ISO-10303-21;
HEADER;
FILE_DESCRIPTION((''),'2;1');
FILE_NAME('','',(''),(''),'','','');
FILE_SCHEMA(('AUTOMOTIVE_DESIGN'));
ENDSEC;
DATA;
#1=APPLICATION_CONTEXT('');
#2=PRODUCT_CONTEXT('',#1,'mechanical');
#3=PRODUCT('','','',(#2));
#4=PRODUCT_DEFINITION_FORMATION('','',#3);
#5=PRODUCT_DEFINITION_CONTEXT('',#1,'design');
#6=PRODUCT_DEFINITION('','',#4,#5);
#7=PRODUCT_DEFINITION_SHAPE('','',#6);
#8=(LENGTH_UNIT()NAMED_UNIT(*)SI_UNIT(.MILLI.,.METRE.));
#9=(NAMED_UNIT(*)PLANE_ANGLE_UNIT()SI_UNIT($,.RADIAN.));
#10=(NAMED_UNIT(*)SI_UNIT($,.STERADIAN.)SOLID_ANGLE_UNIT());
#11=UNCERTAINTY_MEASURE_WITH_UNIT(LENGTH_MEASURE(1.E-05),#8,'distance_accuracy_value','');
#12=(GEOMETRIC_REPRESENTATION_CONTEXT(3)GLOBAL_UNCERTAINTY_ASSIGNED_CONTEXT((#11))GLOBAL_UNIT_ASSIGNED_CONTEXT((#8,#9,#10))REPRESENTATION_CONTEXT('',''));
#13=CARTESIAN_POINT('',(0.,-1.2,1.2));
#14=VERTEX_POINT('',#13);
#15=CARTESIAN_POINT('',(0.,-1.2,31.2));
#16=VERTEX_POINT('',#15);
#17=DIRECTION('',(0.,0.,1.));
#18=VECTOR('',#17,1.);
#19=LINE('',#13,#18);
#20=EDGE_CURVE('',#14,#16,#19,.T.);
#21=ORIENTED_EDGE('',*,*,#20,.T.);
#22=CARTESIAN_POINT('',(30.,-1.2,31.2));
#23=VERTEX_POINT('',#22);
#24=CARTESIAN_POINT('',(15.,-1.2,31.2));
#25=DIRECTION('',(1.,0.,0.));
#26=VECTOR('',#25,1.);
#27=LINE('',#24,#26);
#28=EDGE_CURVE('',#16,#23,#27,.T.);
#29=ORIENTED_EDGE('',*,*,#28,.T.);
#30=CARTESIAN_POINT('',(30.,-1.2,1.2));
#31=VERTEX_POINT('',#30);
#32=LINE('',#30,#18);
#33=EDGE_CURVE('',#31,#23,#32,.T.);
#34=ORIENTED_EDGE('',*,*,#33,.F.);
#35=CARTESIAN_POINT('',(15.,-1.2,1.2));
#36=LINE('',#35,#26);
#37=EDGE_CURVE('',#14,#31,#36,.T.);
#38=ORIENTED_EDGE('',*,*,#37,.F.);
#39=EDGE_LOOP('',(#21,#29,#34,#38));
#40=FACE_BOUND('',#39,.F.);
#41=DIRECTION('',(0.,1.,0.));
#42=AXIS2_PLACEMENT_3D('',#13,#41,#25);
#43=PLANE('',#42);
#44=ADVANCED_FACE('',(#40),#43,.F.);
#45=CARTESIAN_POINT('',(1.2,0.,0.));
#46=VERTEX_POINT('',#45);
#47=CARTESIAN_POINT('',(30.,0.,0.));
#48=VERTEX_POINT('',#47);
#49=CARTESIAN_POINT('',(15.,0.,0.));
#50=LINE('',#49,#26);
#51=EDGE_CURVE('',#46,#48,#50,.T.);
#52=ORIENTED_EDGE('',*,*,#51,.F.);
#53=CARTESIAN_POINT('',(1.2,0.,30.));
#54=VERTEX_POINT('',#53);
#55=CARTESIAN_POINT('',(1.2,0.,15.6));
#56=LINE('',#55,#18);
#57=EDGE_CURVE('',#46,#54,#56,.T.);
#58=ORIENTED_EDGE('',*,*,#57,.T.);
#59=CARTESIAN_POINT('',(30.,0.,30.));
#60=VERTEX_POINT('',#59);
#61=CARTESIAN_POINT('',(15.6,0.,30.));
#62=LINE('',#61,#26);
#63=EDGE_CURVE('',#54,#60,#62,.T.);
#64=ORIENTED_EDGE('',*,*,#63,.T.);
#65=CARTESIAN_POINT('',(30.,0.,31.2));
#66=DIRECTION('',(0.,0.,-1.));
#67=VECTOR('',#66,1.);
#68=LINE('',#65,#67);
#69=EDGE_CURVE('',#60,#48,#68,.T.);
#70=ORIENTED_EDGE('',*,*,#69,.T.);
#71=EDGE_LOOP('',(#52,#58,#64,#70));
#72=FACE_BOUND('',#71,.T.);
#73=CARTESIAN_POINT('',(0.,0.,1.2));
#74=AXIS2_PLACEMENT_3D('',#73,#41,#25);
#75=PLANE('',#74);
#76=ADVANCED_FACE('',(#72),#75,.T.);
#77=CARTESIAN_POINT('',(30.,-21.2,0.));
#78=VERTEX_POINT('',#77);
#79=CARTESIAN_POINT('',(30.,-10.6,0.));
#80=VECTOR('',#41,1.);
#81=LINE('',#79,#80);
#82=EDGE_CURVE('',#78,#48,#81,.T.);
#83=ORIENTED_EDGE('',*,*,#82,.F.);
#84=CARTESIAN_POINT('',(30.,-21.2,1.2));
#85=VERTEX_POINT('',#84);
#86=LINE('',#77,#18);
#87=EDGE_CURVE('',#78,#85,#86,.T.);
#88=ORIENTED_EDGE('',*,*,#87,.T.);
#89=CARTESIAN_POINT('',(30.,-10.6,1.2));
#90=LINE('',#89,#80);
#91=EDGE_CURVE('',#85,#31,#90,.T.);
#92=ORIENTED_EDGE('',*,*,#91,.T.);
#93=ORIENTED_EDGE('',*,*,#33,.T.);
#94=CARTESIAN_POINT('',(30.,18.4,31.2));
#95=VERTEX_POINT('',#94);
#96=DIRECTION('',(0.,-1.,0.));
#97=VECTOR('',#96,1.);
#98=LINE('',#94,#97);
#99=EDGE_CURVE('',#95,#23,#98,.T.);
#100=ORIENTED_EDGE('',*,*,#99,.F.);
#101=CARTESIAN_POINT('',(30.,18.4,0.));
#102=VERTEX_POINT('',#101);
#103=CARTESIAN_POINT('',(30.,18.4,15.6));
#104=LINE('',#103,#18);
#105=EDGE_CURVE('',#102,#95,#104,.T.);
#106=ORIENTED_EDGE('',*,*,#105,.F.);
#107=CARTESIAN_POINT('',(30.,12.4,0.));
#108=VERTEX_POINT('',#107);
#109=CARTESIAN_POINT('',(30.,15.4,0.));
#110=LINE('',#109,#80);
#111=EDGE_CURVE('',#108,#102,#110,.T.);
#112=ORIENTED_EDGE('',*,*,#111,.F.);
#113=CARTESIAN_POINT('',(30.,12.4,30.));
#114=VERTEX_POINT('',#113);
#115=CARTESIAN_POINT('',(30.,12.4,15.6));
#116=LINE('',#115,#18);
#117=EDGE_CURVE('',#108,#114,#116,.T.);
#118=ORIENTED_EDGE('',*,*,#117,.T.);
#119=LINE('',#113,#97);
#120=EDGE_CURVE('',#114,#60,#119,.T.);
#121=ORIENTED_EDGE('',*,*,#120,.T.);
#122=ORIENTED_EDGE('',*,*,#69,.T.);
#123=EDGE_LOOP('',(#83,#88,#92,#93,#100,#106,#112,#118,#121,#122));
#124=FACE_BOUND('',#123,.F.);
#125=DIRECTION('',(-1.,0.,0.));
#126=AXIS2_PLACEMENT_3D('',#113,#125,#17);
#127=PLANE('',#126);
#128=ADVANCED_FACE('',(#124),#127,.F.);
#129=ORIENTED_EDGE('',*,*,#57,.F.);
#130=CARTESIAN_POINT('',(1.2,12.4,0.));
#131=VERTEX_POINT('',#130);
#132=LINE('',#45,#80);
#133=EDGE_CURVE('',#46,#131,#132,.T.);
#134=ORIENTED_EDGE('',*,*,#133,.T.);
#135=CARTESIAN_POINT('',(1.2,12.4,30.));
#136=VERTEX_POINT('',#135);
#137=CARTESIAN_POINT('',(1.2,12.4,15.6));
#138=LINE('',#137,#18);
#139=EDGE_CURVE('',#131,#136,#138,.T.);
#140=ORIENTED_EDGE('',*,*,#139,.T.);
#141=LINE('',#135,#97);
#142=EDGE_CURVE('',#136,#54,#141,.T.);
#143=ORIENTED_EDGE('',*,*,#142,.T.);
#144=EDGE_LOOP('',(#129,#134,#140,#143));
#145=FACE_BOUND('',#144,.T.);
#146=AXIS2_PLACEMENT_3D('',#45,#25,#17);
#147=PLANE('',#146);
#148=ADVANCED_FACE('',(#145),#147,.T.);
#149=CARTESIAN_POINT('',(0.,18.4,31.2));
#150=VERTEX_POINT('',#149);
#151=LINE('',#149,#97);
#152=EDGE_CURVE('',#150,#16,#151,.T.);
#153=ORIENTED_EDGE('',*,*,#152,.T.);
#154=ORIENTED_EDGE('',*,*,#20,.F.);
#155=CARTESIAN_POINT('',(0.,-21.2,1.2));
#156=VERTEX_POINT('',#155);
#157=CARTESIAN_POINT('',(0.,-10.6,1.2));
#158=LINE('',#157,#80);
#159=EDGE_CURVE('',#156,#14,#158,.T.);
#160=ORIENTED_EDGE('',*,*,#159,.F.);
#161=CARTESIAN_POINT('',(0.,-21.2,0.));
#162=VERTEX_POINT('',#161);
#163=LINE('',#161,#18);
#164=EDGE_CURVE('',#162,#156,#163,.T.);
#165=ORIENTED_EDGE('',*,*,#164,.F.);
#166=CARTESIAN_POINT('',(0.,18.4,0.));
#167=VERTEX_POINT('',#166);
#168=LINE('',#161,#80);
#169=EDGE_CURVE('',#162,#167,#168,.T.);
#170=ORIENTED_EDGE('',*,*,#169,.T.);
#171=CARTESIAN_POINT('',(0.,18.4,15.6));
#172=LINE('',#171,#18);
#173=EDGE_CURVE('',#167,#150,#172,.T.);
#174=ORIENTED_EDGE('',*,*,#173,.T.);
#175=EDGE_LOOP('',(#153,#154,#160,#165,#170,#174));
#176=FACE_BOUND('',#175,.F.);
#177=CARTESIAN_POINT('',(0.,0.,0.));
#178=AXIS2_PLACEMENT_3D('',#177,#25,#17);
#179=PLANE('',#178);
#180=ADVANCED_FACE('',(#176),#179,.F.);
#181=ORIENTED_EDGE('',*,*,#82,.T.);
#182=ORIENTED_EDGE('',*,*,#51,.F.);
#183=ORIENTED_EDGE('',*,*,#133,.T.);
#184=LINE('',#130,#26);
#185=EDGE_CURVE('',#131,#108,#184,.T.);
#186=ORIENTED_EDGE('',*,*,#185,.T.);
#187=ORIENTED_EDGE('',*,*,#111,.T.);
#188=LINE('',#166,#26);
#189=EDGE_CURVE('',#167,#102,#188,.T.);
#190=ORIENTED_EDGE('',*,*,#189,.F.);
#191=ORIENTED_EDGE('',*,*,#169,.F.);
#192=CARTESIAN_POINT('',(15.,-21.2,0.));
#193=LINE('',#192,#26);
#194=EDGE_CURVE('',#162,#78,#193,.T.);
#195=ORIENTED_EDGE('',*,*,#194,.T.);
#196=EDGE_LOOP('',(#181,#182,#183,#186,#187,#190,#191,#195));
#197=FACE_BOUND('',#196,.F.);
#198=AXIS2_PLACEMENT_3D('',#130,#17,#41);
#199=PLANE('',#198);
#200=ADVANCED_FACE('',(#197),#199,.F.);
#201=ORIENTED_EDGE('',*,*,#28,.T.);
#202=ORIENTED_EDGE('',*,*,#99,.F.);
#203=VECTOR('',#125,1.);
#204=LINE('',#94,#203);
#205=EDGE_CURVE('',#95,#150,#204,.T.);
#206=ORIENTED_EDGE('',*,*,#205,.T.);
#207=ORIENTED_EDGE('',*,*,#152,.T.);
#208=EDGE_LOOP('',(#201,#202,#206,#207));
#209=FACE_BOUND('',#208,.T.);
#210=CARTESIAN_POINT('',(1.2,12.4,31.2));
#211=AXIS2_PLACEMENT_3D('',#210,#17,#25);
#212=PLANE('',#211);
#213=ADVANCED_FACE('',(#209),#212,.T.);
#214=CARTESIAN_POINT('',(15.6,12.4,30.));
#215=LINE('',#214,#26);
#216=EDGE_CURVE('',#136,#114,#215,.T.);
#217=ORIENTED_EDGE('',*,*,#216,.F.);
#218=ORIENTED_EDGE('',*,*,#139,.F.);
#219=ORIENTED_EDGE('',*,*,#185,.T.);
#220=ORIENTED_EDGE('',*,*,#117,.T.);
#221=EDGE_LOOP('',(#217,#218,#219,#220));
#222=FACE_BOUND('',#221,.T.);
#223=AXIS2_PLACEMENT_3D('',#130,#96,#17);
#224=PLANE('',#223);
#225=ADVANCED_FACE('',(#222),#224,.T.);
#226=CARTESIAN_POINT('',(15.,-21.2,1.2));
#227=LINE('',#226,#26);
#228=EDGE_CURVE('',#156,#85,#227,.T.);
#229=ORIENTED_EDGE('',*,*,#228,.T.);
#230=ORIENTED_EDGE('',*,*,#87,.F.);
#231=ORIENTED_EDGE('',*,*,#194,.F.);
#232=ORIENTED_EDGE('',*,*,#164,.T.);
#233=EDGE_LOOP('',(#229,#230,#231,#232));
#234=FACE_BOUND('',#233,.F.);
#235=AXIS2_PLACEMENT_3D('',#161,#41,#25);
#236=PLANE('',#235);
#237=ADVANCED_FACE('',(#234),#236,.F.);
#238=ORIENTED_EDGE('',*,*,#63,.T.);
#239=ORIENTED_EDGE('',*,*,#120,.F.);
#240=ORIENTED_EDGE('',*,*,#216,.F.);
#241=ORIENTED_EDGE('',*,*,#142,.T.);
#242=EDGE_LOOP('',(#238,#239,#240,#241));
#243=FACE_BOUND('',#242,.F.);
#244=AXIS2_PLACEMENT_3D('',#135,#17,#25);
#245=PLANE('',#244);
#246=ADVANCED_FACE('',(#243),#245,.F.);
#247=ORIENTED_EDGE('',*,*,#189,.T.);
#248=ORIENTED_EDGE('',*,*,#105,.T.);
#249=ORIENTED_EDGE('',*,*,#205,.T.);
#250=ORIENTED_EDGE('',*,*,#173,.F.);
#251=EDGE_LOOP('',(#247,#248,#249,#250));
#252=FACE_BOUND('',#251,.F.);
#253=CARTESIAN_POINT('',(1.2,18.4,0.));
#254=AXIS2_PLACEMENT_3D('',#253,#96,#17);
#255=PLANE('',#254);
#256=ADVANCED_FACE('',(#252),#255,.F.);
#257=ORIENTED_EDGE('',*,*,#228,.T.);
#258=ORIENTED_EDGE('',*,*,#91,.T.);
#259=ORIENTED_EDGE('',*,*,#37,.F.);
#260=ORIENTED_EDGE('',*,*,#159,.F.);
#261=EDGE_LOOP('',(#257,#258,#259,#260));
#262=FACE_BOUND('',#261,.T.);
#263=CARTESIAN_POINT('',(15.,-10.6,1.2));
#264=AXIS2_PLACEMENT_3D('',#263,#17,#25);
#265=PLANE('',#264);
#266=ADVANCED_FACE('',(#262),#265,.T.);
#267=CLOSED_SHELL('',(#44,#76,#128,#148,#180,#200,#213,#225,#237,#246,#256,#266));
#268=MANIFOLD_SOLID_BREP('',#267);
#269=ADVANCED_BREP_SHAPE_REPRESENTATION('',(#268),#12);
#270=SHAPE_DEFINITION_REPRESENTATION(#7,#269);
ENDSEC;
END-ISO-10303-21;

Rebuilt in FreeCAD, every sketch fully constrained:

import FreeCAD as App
import Part
import Sketcher

V = App.Vector
Q = App.Units.Quantity

doc = App.newDocument("Part")
body = doc.addObject("PartDesign::Body", "Body")

# Sketch on XY plane
sketch1 = doc.addObject("Sketcher::SketchObject", "Sketch")
body.addObject(sketch1)
sketch1.AttachmentSupport = (doc.XY_Plane, [""])
sketch1.MapMode = "FlatFace"
sketch1.addGeometry([
    Part.LineSegment(V(0, 0, 0), V(0, -21.2, 0)),
    Part.LineSegment(V(0, -21.2, 0), V(30, -21.2, 0)),
    Part.LineSegment(V(30, -21.2, 0), V(30, 0, 0)),
    Part.LineSegment(V(30, 0, 0), V(0, 0, 0)),
], False)
sketch1.addConstraint([
    Sketcher.Constraint("Coincident", 0, 2, 1, 1),
    Sketcher.Constraint("Coincident", 1, 2, 2, 1),
    Sketcher.Constraint("Coincident", 2, 2, 3, 1),
    Sketcher.Constraint("Coincident", 3, 2, 0, 1),
    Sketcher.Constraint("Vertical", 0),
    Sketcher.Constraint("Horizontal", 1),
    Sketcher.Constraint("Vertical", 2),
    Sketcher.Constraint("Horizontal", 3),
    Sketcher.Constraint("Coincident", 3, 2, -1, 1),
    Sketcher.Constraint("DistanceX", 1, 1, 1, 2, Q("30 mm")),
    Sketcher.Constraint("DistanceY", 0, 2, 0, 1, Q("21.2 mm")),
])
pad1 = doc.addObject("PartDesign::Pad", "Pad")
body.addObject(pad1)
pad1.Profile = sketch1
pad1.Length = 1.2

# Sketch on XY plane
sketch2 = doc.addObject("Sketcher::SketchObject", "Sketch001")
body.addObject(sketch2)
sketch2.AttachmentSupport = (doc.XY_Plane, [""])
sketch2.MapMode = "FlatFace"
sketch2.AttachmentOffset = App.Placement(V(0, 0, 1.2), App.Rotation())
sketch2.addGeometry([
    Part.LineSegment(V(0, 0, 0), V(0, -1.2, 0)),
    Part.LineSegment(V(0, -1.2, 0), V(30, -1.2, 0)),
    Part.LineSegment(V(30, -1.2, 0), V(30, 0, 0)),
    Part.LineSegment(V(30, 0, 0), V(0, 0, 0)),
], False)
sketch2.addConstraint([
    Sketcher.Constraint("Coincident", 0, 2, 1, 1),
    Sketcher.Constraint("Coincident", 1, 2, 2, 1),
    Sketcher.Constraint("Coincident", 2, 2, 3, 1),
    Sketcher.Constraint("Coincident", 3, 2, 0, 1),
    Sketcher.Constraint("Vertical", 0),
    Sketcher.Constraint("Horizontal", 1),
    Sketcher.Constraint("Vertical", 2),
    Sketcher.Constraint("Horizontal", 3),
    Sketcher.Constraint("Coincident", 3, 2, -1, 1),
    Sketcher.Constraint("DistanceX", 1, 1, 1, 2, Q("30 mm")),
    Sketcher.Constraint("DistanceY", 0, 2, 0, 1, Q("1.2 mm")),
])
pad2 = doc.addObject("PartDesign::Pad", "Pad001")
body.addObject(pad2)
pad2.Profile = sketch2
pad2.Length = 30

# Sketch on XZ plane
sketch3 = doc.addObject("Sketcher::SketchObject", "Sketch002")
body.addObject(sketch3)
sketch3.AttachmentSupport = (doc.XZ_Plane, [""])
sketch3.MapMode = "FlatFace"
sketch3.addGeometry([
    Part.LineSegment(V(1.2, 31.2, 0), V(1.2, 0, 0)),
    Part.LineSegment(V(1.2, 0, 0), V(0, 0, 0)),
    Part.LineSegment(V(0, 0, 0), V(0, 31.2, 0)),
    Part.LineSegment(V(0, 31.2, 0), V(1.2, 31.2, 0)),
], False)
sketch3.addConstraint([
    Sketcher.Constraint("Coincident", 0, 2, 1, 1),
    Sketcher.Constraint("Coincident", 1, 2, 2, 1),
    Sketcher.Constraint("Coincident", 2, 2, 3, 1),
    Sketcher.Constraint("Coincident", 3, 2, 0, 1),
    Sketcher.Constraint("Vertical", 0),
    Sketcher.Constraint("Horizontal", 1),
    Sketcher.Constraint("Vertical", 2),
    Sketcher.Constraint("Horizontal", 3),
    Sketcher.Constraint("Coincident", 1, 2, -1, 1),
    Sketcher.Constraint("DistanceX", 1, 2, 1, 1, Q("1.2 mm")),
    Sketcher.Constraint("DistanceY", 0, 2, 0, 1, Q("31.2 mm")),
])
pad3 = doc.addObject("PartDesign::Pad", "Pad002")
body.addObject(pad3)
pad3.Profile = sketch3
pad3.Length = 18.4
pad3.Reversed = True

# Sketch on YZ plane
sketch4 = doc.addObject("Sketcher::SketchObject", "Sketch003")
body.addObject(sketch4)
sketch4.AttachmentSupport = (doc.YZ_Plane, [""])
sketch4.MapMode = "FlatFace"
sketch4.AttachmentOffset = App.Placement(V(0, 0, 1.2), App.Rotation())
sketch4.addGeometry([
    Part.LineSegment(V(12.4, 31.2, 0), V(12.4, 0, 0)),
    Part.LineSegment(V(12.4, 0, 0), V(18.4, 0, 0)),
    Part.LineSegment(V(18.4, 0, 0), V(18.4, 31.2, 0)),
    Part.LineSegment(V(18.4, 31.2, 0), V(12.4, 31.2, 0)),
], False)
sketch4.addConstraint([
    Sketcher.Constraint("Coincident", 0, 2, 1, 1),
    Sketcher.Constraint("Coincident", 1, 2, 2, 1),
    Sketcher.Constraint("Coincident", 2, 2, 3, 1),
    Sketcher.Constraint("Coincident", 3, 2, 0, 1),
    Sketcher.Constraint("Vertical", 0),
    Sketcher.Constraint("Horizontal", 1),
    Sketcher.Constraint("Vertical", 2),
    Sketcher.Constraint("Horizontal", 3),
    Sketcher.Constraint("PointOnObject", 0, 2, -1),
    Sketcher.Constraint("DistanceX", 1, 1, 1, 2, Q("6 mm")),
    Sketcher.Constraint("DistanceY", 0, 2, 0, 1, Q("31.2 mm")),
    Sketcher.Constraint("DistanceX", -1, 1, 0, 2, Q("12.4 mm")),
])
pad4 = doc.addObject("PartDesign::Pad", "Pad003")
body.addObject(pad4)
pad4.Profile = sketch4
pad4.Length = 28.8

# Sketch on XZ plane
sketch5 = doc.addObject("Sketcher::SketchObject", "Sketch004")
body.addObject(sketch5)
sketch5.AttachmentSupport = (doc.XZ_Plane, [""])
sketch5.MapMode = "FlatFace"
sketch5.AttachmentOffset = App.Placement(V(0, 0, -12.4), App.Rotation())
sketch5.addGeometry([
    Part.LineSegment(V(1.2, 31.2, 0), V(1.2, 30, 0)),
    Part.LineSegment(V(1.2, 30, 0), V(30, 30, 0)),
    Part.LineSegment(V(30, 30, 0), V(30, 31.2, 0)),
    Part.LineSegment(V(30, 31.2, 0), V(1.2, 31.2, 0)),
], False)
sketch5.addConstraint([
    Sketcher.Constraint("Coincident", 0, 2, 1, 1),
    Sketcher.Constraint("Coincident", 1, 2, 2, 1),
    Sketcher.Constraint("Coincident", 2, 2, 3, 1),
    Sketcher.Constraint("Coincident", 3, 2, 0, 1),
    Sketcher.Constraint("Vertical", 0),
    Sketcher.Constraint("Horizontal", 1),
    Sketcher.Constraint("Vertical", 2),
    Sketcher.Constraint("Horizontal", 3),
    Sketcher.Constraint("DistanceX", 1, 1, 1, 2, Q("28.8 mm")),
    Sketcher.Constraint("DistanceY", 0, 2, 0, 1, Q("1.2 mm")),
    Sketcher.Constraint("DistanceY", -1, 1, 0, 2, Q("30 mm")),
    Sketcher.Constraint("DistanceX", -1, 1, 1, 2, Q("30 mm")),
])
pad5 = doc.addObject("PartDesign::Pad", "Pad004")
body.addObject(pad5)
pad5.Profile = sketch5
pad5.Type = "UpToLast"

doc.recompute()
